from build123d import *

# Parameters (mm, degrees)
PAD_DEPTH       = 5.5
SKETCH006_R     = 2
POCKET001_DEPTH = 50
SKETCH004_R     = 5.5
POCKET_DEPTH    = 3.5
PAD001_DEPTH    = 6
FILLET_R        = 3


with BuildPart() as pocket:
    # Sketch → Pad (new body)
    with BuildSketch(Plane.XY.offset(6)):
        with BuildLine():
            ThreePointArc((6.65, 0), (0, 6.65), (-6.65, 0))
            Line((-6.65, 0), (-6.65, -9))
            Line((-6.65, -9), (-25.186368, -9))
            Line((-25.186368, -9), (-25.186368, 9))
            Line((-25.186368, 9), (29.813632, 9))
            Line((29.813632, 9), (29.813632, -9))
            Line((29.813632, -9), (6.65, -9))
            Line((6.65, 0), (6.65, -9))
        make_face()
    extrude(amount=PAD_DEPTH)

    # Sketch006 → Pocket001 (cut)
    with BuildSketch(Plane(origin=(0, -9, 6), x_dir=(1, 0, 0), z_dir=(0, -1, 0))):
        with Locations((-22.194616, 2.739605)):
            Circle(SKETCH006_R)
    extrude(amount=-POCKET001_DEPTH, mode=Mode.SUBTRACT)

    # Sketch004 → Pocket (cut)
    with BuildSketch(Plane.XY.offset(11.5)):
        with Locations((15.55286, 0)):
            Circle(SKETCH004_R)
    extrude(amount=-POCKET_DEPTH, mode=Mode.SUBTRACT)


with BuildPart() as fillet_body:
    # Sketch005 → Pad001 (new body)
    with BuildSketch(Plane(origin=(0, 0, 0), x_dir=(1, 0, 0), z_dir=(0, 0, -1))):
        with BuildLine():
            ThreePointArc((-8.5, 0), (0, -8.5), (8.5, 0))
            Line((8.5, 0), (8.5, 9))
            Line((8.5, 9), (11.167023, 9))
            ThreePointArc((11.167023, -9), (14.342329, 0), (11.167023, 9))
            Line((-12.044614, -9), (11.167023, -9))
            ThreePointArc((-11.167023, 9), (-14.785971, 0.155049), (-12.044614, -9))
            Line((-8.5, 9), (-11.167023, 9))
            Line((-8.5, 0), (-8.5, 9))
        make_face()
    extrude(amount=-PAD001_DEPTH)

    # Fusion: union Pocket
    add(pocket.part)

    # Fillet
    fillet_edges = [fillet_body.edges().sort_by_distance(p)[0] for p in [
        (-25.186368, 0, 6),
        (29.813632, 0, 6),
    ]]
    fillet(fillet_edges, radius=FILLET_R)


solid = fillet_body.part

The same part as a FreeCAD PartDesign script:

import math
import FreeCAD as App
import Part
import Sketcher

V = App.Vector


def edges_at(feature, points):
    """Names of the edges that pass closest to the given points."""
    edges = feature.Shape.Edges
    near = lambda p: min(range(len(edges)), key=lambda i: edges[i].distToShape(Part.Vertex(*p))[0])
    return sorted({f"Edge{near(p) + 1}" for p in points})

doc = App.newDocument("Part")
params = doc.addObject("Spreadsheet::Sheet", "Params")
for row, (alias, value) in enumerate([
    ("sketch1_width", "55 mm"),
    ("sketch1_height", "9 mm"),
    ("sketch1_height2", "18 mm"),
    ("sketch1_radius", "6.65 mm"),
    ("pad1_length", "5.5 mm"),
    ("sketch2_diameter", "4 mm"),
    ("pocket1_length", "50 mm"),
    ("sketch3_diameter", "11 mm"),
    ("pocket2_length", "3.5 mm"),
    ("sketch4_radius", "8.5 mm"),
    ("sketch4_height", "9 mm"),
    ("pad2_length", "6 mm"),
    ("fillet_radius", "3 mm"),
], start=1):
    params.set(f"A{row}", alias)
    params.set(f"B{row}", "=" + value)
    params.setAlias(f"B{row}", alias)

body = doc.addObject("PartDesign::Body", "Body")

sketch1 = body.newObject("Sketcher::SketchObject", "Sketch")
sketch1.AttachmentSupport = (doc.getObject("XY_Plane"), [""])
sketch1.MapMode = "FlatFace"
sketch1.AttachmentOffset = App.Placement(V(0, 0, 6), App.Rotation())
sketch1.addGeometry([
    Part.ArcOfCircle(Part.Circle(V(0, 0, 0), V(0, 0, 1), 7), math.radians(0), math.radians(180)),
    Part.LineSegment(V(7, 0, 0), V(7, -9, 0)),
    Part.LineSegment(V(7, -9, 0), V(30, -9, 0)),
    Part.LineSegment(V(30, -9, 0), V(30, 9, 0)),
    Part.LineSegment(V(30, 9, 0), V(-25, 9, 0)),
    Part.LineSegment(V(-25, 9, 0), V(-25, -9, 0)),
    Part.LineSegment(V(-25, -9, 0), V(-7, -9, 0)),
    Part.LineSegment(V(-7, -9, 0), V(-7, 0, 0)),
], False)
sketch1.addConstraint([
    Sketcher.Constraint("Tangent", 0, 1, 1, 1),
    Sketcher.Constraint("Coincident", 1, 2, 2, 1),
    Sketcher.Constraint("Coincident", 2, 2, 3, 1),
    Sketcher.Constraint("Coincident", 3, 2, 4, 1),
    Sketcher.Constraint("Coincident", 4, 2, 5, 1),
    Sketcher.Constraint("Coincident", 5, 2, 6, 1),
    Sketcher.Constraint("Coincident", 6, 2, 7, 1),
    Sketcher.Constraint("Tangent", 7, 2, 0, 2),
    Sketcher.Constraint("Vertical", 1),
    Sketcher.Constraint("Horizontal", 2),
    Sketcher.Constraint("Vertical", 3),
    Sketcher.Constraint("Horizontal", 4),
    Sketcher.Constraint("Vertical", 5),
    Sketcher.Constraint("Horizontal", 6),
    Sketcher.Constraint("Vertical", 7),
    Sketcher.Constraint("Coincident", 0, 3, -1, 1),
    Sketcher.Constraint("Horizontal", 2, 2, 5, 2),
    Sketcher.Constraint("DistanceX", 4, 2, 4, 1, 55.0),
    Sketcher.Constraint("DistanceY", 1, 2, 1, 1, 9.0),
    Sketcher.Constraint("DistanceY", 3, 1, 3, 2, 18.0),
    Sketcher.Constraint("Radius", 0, 6.65),
    Sketcher.Constraint("DistanceX", 2, 1, 2, 2, 23.163632),
])
sketch1.setExpression("Constraints[17]", "Params.sketch1_width")
sketch1.setExpression("Constraints[18]", "Params.sketch1_height")
sketch1.setExpression("Constraints[19]", "Params.sketch1_height2")
sketch1.setExpression("Constraints[20]", "Params.sketch1_radius")
pad1 = body.newObject("PartDesign::Pad", "Pad")
pad1.Profile = sketch1
pad1.setExpression("Length", "Params.pad1_length")

sketch2 = body.newObject("Sketcher::SketchObject", "Sketch001")
sketch2.AttachmentSupport = (doc.getObject("XZ_Plane"), [""])
sketch2.MapMode = "FlatFace"
sketch2.AttachmentOffset = App.Placement(V(0, 0, 9), App.Rotation())
sketch2.addGeometry(Part.Circle(V(-22.2, 8.7, 0), V(0, 0, 1), 2), False)
sketch2.addConstraint([
    Sketcher.Constraint("Diameter", 0, 4.0),
    Sketcher.Constraint("DistanceX", 0, 3, -1, 1, 22.194616),
    Sketcher.Constraint("DistanceY", -1, 1, 0, 3, 8.739605),
])
sketch2.setExpression("Constraints[0]", "Params.sketch2_diameter")
pocket1 = body.newObject("PartDesign::Pocket", "Pocket")
pocket1.Profile = sketch2
pocket1.setExpression("Length", "Params.pocket1_length")

sketch3 = body.newObject("Sketcher::SketchObject", "Sketch002")
sketch3.AttachmentSupport = (doc.getObject("XY_Plane"), [""])
sketch3.MapMode = "FlatFace"
sketch3.AttachmentOffset = App.Placement(V(0, 0, 11.5), App.Rotation())
sketch3.addGeometry(Part.Circle(V(16, 0, 0), V(0, 0, 1), 6), False)
sketch3.addConstraint([
    Sketcher.Constraint("PointOnObject", 0, 3, -1),
    Sketcher.Constraint("Diameter", 0, 11.0),
    Sketcher.Constraint("DistanceX", -1, 1, 0, 3, 15.55286),
])
sketch3.setExpression("Constraints[1]", "Params.sketch3_diameter")
pocket2 = body.newObject("PartDesign::Pocket", "Pocket001")
pocket2.Profile = sketch3
pocket2.setExpression("Length", "Params.pocket2_length")
body2 = doc.addObject("PartDesign::Body", "Body001")

sketch4 = body2.newObject("Sketcher::SketchObject", "Sketch003")
sketch4.AttachmentSupport = (doc.getObject("XY_Plane001"), [""])
sketch4.MapMode = "FlatFace"
sketch4.addGeometry([
    Part.ArcOfCircle(Part.Circle(V(0, 0, 0), V(0, 0, 1), 8.5), math.radians(0), math.radians(180)),
    Part.LineSegment(V(-8.5, 0, 0), V(-8.5, -9, 0)),
    Part.LineSegment(V(-8.5, -9, 0), V(-11.2, -9, 0)),
    Part.ArcOfCircle(Part.Circle(V(-0.5, 0.5, 0), V(0, 0, 1), 14.3), math.radians(144), math.radians(222)),
    Part.LineSegment(V(-12, 9, 0), V(11.2, 9, 0)),
    Part.ArcOfCircle(Part.Circle(V(0, 0, 0), V(0, 0, 1), 14.3), math.radians(-39), math.radians(39)),
    Part.LineSegment(V(11.2, -9, 0), V(8.5, -9, 0)),
    Part.LineSegment(V(8.5, -9, 0), V(8.5, 0, 0)),
], False)
sketch4.addConstraint([
    Sketcher.Constraint("Tangent", 0, 2, 1, 1),
    Sketcher.Constraint("Coincident", 1, 2, 2, 1),
    Sketcher.Constraint("Coincident", 2, 2, 3, 2),
    Sketcher.Constraint("Coincident", 3, 1, 4, 1),
    Sketcher.Constraint("Coincident", 4, 2, 5, 2),
    Sketcher.Constraint("Coincident", 5, 1, 6, 1),
    Sketcher.Constraint("Coincident", 6, 2, 7, 1),
    Sketcher.Constraint("Tangent", 7, 2, 0, 1),
    Sketcher.Constraint("Vertical", 1),
    Sketcher.Constraint("Horizontal", 2),
    Sketcher.Constraint("Horizontal", 4),
    Sketcher.Constraint("Horizontal", 6),
    Sketcher.Constraint("Vertical", 7),
    Sketcher.Constraint("Coincident", 0, 3, -1, 1),
    Sketcher.Constraint("Coincident", 5, 3, -1, 1),
    Sketcher.Constraint("Equal", 3, 5),
    Sketcher.Constraint("Symmetric", 2, 2, 4, 2, -1, 1),
    Sketcher.Constraint("Horizontal", 2, 2, 5, 1),
    Sketcher.Constraint("Radius", 0, 8.5),
    Sketcher.Constraint("DistanceY", 1, 2, 1, 1, 9.0),
    Sketcher.Constraint("Radius", 3, 14.34233),
    Sketcher.Constraint("DistanceX", 4, 1, 4, 2, 23.211637),
])
sketch4.setExpression("Constraints[18]", "Params.sketch4_radius")
sketch4.setExpression("Constraints[19]", "Params.sketch4_height")
pad2 = body2.newObject("PartDesign::Pad", "Pad001")
pad2.Profile = sketch4
pad2.setExpression("Length", "Params.pad2_length")
doc.recompute()

boolean = body2.newObject("PartDesign::Boolean", "Boolean")
boolean.Type = "Fuse"
boolean.addObjects([body])
doc.recompute()

fillet = body2.newObject("PartDesign::Fillet", "Fillet")
fillet.Base = (boolean, edges_at(boolean, [(-25.186, 0, 6), (29.814, 0, 6)]))
fillet.setExpression("Radius", "Params.fillet_radius")

doc.recompute()
